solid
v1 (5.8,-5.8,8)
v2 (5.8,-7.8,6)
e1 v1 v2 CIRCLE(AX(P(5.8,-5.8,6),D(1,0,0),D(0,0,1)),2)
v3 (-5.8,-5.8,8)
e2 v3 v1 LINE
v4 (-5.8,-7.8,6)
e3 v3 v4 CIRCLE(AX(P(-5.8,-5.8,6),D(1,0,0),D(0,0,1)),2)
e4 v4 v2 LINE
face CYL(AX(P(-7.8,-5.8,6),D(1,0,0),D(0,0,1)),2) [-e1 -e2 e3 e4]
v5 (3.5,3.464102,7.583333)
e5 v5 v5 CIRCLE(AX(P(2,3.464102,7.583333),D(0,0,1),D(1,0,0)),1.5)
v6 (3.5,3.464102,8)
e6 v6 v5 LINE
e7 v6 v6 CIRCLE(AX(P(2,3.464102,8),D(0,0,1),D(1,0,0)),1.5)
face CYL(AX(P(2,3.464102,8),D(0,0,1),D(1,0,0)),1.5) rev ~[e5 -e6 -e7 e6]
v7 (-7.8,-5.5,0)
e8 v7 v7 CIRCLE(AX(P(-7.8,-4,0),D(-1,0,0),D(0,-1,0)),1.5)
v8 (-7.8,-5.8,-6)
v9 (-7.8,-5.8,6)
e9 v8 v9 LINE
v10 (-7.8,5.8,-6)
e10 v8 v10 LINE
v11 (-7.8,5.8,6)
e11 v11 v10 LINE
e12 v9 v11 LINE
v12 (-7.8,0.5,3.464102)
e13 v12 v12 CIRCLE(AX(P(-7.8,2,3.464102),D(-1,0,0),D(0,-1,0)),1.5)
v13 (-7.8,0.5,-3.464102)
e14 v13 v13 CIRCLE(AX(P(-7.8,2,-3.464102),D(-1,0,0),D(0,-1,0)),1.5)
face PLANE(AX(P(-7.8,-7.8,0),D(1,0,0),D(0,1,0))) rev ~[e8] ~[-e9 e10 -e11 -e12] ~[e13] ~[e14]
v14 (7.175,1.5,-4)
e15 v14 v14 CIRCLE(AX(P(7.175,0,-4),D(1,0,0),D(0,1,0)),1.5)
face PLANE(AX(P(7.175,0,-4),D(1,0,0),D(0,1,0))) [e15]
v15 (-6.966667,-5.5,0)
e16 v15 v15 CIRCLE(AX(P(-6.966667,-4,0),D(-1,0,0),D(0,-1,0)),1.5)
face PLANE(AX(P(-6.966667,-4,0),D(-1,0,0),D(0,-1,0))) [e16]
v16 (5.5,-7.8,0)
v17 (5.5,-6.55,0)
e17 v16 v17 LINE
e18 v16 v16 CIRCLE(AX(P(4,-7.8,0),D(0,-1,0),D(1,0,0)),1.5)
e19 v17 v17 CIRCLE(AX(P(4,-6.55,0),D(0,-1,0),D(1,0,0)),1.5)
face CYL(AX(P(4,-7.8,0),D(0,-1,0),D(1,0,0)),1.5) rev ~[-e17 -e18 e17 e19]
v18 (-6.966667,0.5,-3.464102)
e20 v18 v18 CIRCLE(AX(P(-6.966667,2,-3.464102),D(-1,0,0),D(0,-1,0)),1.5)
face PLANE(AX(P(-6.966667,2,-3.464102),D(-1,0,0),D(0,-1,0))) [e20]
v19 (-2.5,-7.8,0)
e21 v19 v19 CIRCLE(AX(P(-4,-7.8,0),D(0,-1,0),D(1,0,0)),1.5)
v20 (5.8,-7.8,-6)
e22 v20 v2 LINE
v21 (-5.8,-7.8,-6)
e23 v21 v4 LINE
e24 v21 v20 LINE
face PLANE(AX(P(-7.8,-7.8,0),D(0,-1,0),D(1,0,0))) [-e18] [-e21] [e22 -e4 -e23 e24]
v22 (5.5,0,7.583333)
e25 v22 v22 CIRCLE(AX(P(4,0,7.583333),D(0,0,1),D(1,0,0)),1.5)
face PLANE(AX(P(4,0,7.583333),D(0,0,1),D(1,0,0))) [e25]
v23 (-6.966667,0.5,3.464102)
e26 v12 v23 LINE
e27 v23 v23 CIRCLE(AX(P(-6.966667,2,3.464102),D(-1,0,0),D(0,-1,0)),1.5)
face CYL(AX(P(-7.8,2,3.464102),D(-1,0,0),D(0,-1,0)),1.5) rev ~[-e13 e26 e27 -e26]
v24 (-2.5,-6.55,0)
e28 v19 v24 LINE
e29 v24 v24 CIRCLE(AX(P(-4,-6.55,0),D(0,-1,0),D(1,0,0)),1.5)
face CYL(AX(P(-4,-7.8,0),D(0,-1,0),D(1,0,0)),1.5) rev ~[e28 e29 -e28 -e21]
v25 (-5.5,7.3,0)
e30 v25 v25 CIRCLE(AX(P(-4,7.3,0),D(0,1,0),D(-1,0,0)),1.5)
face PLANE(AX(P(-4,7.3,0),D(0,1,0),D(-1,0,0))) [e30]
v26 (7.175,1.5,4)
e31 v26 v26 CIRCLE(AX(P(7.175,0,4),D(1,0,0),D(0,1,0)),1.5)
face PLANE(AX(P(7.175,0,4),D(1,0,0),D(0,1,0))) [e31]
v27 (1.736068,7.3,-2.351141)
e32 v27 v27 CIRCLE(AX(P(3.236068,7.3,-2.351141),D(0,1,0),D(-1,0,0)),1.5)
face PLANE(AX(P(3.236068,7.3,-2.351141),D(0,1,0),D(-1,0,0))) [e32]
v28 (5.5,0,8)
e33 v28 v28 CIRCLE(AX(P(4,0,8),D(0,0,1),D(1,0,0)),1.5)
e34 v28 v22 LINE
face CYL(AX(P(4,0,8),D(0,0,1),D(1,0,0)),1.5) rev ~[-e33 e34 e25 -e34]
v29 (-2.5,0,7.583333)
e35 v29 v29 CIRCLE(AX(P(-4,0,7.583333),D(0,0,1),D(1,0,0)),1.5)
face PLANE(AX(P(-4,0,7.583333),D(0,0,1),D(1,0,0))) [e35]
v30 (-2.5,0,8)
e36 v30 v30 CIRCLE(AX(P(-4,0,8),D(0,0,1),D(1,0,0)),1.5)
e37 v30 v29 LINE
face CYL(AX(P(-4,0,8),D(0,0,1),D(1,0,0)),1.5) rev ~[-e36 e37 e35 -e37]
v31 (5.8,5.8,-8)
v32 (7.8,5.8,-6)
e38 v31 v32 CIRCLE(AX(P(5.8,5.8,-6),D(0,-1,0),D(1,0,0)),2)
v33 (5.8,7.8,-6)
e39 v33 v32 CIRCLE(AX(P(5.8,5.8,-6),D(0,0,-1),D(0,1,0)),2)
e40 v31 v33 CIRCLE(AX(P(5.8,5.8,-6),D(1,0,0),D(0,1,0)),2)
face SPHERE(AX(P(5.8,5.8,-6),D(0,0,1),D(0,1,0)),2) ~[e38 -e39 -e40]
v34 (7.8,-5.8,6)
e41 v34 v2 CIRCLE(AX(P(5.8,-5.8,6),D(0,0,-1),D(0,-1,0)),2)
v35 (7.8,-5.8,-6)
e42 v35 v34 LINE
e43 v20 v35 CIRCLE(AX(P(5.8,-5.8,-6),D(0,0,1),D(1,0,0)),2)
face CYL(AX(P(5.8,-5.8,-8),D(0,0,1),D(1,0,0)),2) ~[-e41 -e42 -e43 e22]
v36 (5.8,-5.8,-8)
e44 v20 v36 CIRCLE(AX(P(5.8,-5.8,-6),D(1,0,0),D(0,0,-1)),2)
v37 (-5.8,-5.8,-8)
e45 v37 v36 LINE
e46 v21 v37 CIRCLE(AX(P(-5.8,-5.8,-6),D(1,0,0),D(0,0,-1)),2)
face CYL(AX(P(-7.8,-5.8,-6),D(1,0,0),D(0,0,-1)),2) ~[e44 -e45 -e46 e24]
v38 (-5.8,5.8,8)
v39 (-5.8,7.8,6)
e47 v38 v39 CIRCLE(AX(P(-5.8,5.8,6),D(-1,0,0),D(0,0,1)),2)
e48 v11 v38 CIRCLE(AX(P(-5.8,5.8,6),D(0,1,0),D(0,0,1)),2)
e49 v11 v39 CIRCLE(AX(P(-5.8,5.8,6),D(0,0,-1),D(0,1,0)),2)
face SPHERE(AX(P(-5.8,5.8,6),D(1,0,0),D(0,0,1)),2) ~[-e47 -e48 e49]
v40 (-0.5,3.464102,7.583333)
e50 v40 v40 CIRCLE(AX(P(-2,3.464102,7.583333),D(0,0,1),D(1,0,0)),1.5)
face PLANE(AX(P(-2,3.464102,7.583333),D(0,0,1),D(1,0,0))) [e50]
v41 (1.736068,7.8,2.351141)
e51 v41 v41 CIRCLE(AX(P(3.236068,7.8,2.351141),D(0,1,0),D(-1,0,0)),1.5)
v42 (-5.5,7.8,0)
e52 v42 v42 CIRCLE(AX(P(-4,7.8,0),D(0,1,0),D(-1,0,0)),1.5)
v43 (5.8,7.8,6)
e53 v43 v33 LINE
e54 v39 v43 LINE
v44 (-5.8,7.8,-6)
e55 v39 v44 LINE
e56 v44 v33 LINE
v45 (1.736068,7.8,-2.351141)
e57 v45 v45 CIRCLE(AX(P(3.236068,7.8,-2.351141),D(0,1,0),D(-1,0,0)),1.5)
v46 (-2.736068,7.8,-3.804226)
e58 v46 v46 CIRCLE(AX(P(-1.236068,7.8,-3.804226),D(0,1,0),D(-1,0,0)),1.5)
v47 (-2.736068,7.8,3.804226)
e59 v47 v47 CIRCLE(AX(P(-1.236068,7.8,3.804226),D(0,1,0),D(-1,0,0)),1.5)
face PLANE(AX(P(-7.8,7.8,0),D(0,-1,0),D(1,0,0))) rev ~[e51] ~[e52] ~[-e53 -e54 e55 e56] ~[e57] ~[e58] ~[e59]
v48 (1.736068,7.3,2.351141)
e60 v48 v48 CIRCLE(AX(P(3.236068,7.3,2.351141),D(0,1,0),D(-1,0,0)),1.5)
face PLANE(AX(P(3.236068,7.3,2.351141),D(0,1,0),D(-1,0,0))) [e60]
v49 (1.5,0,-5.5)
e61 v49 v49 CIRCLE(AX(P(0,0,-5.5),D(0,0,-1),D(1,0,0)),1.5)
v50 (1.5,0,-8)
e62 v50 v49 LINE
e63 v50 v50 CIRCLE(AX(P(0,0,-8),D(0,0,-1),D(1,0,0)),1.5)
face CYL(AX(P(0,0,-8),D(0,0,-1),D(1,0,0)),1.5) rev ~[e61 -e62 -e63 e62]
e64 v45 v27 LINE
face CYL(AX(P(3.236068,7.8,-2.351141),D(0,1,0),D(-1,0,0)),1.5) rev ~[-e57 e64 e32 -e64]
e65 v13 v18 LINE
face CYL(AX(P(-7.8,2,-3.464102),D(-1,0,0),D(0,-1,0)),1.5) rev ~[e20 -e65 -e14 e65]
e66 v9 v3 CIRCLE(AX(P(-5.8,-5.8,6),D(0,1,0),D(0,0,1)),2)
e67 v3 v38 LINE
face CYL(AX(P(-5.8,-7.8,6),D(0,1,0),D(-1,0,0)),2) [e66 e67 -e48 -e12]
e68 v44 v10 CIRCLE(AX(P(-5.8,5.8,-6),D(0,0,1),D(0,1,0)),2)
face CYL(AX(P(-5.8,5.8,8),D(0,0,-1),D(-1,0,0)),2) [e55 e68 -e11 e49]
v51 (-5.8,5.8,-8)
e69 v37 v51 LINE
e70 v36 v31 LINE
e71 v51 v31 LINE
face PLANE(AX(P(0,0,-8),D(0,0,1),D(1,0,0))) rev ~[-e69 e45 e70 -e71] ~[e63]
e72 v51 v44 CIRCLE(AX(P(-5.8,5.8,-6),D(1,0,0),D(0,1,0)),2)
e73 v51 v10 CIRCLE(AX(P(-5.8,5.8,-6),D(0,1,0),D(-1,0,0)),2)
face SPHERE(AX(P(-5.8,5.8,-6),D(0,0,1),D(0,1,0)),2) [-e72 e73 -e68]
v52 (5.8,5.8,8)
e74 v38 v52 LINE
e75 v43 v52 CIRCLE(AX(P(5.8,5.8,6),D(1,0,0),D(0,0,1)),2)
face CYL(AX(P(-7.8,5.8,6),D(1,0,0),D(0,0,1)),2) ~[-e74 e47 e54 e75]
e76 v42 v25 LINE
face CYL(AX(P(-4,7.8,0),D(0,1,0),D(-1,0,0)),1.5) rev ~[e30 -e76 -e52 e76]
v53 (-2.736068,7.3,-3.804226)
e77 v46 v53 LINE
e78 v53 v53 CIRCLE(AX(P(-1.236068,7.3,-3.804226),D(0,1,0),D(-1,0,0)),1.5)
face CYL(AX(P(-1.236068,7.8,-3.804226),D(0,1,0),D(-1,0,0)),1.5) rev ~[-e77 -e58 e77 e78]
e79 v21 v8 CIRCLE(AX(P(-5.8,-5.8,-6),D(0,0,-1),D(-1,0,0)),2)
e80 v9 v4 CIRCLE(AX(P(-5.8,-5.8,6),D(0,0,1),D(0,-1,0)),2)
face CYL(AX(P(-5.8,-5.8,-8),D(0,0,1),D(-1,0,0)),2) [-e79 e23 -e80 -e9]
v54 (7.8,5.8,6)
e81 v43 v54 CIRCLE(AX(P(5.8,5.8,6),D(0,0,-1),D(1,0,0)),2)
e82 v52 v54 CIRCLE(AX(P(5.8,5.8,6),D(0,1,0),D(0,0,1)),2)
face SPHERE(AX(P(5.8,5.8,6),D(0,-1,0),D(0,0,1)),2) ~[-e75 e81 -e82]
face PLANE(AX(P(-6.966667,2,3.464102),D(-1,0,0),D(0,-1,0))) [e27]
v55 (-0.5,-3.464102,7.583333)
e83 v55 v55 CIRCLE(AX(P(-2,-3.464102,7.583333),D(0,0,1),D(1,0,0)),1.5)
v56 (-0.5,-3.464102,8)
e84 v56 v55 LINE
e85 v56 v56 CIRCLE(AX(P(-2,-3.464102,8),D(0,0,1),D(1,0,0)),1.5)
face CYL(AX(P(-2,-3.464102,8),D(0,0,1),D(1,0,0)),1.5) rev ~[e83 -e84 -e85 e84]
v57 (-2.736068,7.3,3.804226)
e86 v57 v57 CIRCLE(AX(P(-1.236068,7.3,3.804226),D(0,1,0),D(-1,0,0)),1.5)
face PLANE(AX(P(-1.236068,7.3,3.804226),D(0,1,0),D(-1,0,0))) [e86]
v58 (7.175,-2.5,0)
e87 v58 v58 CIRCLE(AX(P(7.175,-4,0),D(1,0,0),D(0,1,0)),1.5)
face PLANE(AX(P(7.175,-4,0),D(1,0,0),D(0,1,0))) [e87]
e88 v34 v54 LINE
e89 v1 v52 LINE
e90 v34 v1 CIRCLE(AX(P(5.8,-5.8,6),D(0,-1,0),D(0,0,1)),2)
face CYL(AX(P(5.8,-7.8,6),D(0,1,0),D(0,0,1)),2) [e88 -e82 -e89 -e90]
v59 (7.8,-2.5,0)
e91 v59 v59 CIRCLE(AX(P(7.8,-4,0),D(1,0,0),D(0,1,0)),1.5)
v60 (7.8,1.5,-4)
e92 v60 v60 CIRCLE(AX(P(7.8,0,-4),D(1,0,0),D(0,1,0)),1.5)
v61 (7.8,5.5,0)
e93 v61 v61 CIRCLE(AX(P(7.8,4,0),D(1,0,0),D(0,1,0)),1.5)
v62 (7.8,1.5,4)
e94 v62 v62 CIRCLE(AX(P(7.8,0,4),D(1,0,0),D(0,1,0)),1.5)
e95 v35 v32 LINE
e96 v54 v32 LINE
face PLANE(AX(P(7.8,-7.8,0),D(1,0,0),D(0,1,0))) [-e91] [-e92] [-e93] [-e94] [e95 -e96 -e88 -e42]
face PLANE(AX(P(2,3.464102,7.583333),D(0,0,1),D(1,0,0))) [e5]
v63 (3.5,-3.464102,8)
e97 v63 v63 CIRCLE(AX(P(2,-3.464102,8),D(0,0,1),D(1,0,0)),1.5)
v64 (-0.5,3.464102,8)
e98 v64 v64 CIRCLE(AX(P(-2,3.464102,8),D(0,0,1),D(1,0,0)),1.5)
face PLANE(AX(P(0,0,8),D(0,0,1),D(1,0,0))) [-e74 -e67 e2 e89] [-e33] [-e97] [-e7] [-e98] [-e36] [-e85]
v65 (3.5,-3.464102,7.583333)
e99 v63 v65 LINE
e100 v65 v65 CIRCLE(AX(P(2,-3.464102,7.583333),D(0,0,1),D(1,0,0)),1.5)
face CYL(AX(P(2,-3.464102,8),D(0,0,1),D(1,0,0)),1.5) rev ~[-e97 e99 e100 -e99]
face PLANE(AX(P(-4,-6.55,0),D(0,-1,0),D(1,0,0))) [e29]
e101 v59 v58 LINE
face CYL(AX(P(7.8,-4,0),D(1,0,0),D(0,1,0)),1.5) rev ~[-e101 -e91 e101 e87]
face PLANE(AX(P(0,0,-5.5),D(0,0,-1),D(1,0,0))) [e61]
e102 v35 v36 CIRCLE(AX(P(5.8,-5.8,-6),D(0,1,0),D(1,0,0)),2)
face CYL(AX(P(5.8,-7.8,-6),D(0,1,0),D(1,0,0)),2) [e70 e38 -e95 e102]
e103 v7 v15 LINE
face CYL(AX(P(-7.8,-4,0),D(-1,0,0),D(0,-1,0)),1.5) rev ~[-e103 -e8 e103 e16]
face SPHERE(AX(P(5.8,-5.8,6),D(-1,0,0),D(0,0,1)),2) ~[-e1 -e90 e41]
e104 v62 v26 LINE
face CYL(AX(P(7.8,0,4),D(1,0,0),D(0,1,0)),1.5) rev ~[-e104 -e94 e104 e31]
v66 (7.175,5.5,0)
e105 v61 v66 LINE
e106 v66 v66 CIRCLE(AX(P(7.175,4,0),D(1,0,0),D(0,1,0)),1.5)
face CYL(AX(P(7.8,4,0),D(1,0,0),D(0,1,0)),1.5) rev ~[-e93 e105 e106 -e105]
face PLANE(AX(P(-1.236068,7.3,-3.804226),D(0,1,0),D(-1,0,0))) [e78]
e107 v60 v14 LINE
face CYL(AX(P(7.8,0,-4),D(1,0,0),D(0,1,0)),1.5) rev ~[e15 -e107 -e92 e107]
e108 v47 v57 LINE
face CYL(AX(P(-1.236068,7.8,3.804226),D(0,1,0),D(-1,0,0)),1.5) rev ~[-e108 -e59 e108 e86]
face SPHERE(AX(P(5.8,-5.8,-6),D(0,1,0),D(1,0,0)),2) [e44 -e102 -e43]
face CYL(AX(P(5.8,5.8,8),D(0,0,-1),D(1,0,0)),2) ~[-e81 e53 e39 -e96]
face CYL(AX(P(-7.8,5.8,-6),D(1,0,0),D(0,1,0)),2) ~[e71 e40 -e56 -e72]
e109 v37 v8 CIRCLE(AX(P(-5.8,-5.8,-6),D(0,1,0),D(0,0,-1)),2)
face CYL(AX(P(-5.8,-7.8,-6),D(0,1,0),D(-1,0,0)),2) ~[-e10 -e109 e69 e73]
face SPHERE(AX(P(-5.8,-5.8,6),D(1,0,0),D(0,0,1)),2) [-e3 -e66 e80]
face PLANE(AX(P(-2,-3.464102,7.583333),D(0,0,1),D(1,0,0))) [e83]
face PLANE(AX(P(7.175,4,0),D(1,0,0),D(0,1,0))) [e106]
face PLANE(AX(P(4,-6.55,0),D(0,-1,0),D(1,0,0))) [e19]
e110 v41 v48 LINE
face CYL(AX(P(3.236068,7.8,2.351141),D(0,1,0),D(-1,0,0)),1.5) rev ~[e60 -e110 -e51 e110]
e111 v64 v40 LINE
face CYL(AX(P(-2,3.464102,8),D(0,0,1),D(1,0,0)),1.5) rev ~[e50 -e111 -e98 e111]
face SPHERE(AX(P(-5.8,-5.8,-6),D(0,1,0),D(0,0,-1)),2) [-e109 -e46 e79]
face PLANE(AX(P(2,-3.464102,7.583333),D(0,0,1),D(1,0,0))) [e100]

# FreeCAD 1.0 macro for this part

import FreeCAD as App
import Part
import Sketcher
from FreeCAD import Vector
Q = App.Units.Quantity

doc = App.newDocument("Part")
params = doc.addObject("Spreadsheet::Sheet", "Params")
for row, (alias, value) in enumerate([
    ("sketch1_width", "15.6 mm"),
    ("pad1_length", "8 mm"),
    ("pad1_length2", "8 mm"),
    ("fillet_radius", "2 mm"),
    ("sketch2_diameter", "3 mm"),
    ("pocket1_length", "2.5 mm"),
    ("sketch3_diameter", "3 mm"),
    ("pocket2_length", "0.416667 mm"),
    ("sketch4_diameter", "3 mm"),
    ("pocket3_length", "1.25 mm"),
    ("sketch5_diameter", "3 mm"),
    ("pocket4_length", "0.833333 mm"),
    ("sketch6_diameter", "3 mm"),
    ("pocket5_length", "0.625 mm"),
    ("sketch7_diameter", "3 mm"),
    ("pocket6_length", "0.5 mm"),
], start=1):
    params.set(f"A{row}", alias)
    params.set(f"B{row}", "=" + value)
    params.setAlias(f"B{row}", alias)

body = doc.addObject("PartDesign::Body", "Body")

# Sketch on XY plane
sketch1 = body.newObject("Sketcher::SketchObject", "Sketch")
sketch1.AttachmentSupport = (doc.getObject("XY_Plane"), [""])
sketch1.MapMode = "FlatFace"
sketch1.addGeometry([
    Part.LineSegment(Vector(-8, 8, 0), Vector(-8, -8, 0)),
    Part.LineSegment(Vector(-8, -8, 0), Vector(8, -8, 0)),
    Part.LineSegment(Vector(8, -8, 0), Vector(8, 8, 0)),
    Part.LineSegment(Vector(8, 8, 0), Vector(-8, 8, 0)),
], False)
sketch1.addConstraint([
    Sketcher.Constraint("Coincident", 0, 2, 1, 1),
    Sketcher.Constraint("Coincident", 1, 2, 2, 1),
    Sketcher.Constraint("Coincident", 2, 2, 3, 1),
    Sketcher.Constraint("Coincident", 3, 2, 0, 1),
    Sketcher.Constraint("Vertical", 0),
    Sketcher.Constraint("Horizontal", 1),
    Sketcher.Constraint("Vertical", 2),
    Sketcher.Constraint("Horizontal", 3),
    Sketcher.Constraint("Symmetric", 0, 2, 2, 2, -1, 1),
    Sketcher.Constraint("Equal", 3, 0),
    Sketcher.Constraint("DistanceX", 1, 1, 1, 2, Q("15.6 mm")),
])
sketch1.setExpression("Constraints[10]", "Params.sketch1_width")
pad1 = body.newObject("PartDesign::Pad", "Pad")
pad1.Profile = sketch1
pad1.Type = "TwoLengths"
pad1.setExpression("Length", "Params.pad1_length")
pad1.setExpression("Length2", "Params.pad1_length2")
doc.recompute()

fillet = body.newObject("PartDesign::Fillet", "Fillet")
fillet.Base = (pad1, ["Edge1"])
fillet.UseAllEdges = True
fillet.setExpression("Radius", "Params.fillet_radius")

# Sketch on XY plane
sketch2 = body.newObject("Sketcher::SketchObject", "Sketch001")
sketch2.AttachmentSupport = (doc.getObject("XY_Plane"), [""])
sketch2.MapMode = "FlatFace"
sketch2.AttachmentOffset = App.Placement(Vector(0, 0, -8), App.Rotation())
sketch2.addGeometry(Part.Circle(Vector(0, 0, 0), Vector(0, 0, 1), 1.5), False)
sketch2.addConstraint([
    Sketcher.Constraint("Coincident", 0, 3, -1, 1),
    Sketcher.Constraint("Diameter", 0, Q("3 mm")),
])
sketch2.setExpression("Constraints[1]", "Params.sketch2_diameter")
pocket1 = body.newObject("PartDesign::Pocket", "Pocket")
pocket1.Profile = sketch2
pocket1.setExpression("Length", "Params.pocket1_length")
pocket1.Reversed = True

# Sketch on XY plane
sketch3 = body.newObject("Sketcher::SketchObject", "Sketch002")
sketch3.AttachmentSupport = (doc.getObject("XY_Plane"), [""])
sketch3.MapMode = "FlatFace"
sketch3.AttachmentOffset = App.Placement(Vector(0, 0, 8), App.Rotation())
sketch3.addGeometry([
    Part.Circle(Vector(-2, 3.5, 0), Vector(0, 0, 1), 1.5),  # 0
    Part.Circle(Vector(2, 3.5, 0), Vector(0, 0, 1), 1.5),  # 1
    Part.Circle(Vector(4, 0, 0), Vector(0, 0, 1), 1.5),  # 2
    Part.Circle(Vector(2, -3.5, 0), Vector(0, 0, 1), 1.5),  # 3
    Part.Circle(Vector(-2, -3.5, 0), Vector(0, 0, 1), 1.5),  # 4
    Part.Circle(Vector(-4, 0, 0), Vector(0, 0, 1), 1.5),  # 5
], False)
sketch3.addConstraint([
    Sketcher.Constraint("Equal", 0, 1),
    Sketcher.Constraint("Equal", 1, 2),
    Sketcher.Constraint("Equal", 2, 3),
    Sketcher.Constraint("Equal", 3, 4),
    Sketcher.Constraint("Equal", 4, 5),
    Sketcher.Constraint("Symmetric", 0, 3, 3, 3, -1, 1),
    Sketcher.Constraint("Symmetric", 1, 3, 4, 3, -1, 1),
    Sketcher.Constraint("Symmetric", 2, 3, 5, 3, -1, 1),
    Sketcher.Constraint("Symmetric", 0, 3, 1, 3, -2),
    Sketcher.Constraint("PointOnObject", 2, 3, -1),
    Sketcher.Constraint("Diameter", 0, Q("3 mm")),
    Sketcher.Constraint("DistanceX", 0, 3, -1, 1, Q("2 mm")),
    Sketcher.Constraint("DistanceX", -1, 1, 2, 3, Q("4 mm")),
    Sketcher.Constraint("DistanceY", -1, 1, 0, 3, Q("3.464102 mm")),
])
sketch3.setExpression("Constraints[10]", "Params.sketch3_diameter")
pocket2 = body.newObject("PartDesign::Pocket", "Pocket001")
pocket2.Profile = sketch3
pocket2.setExpression("Length", "Params.pocket2_length")

# Sketch on XZ plane
sketch4 = body.newObject("Sketcher::SketchObject", "Sketch003")
sketch4.AttachmentSupport = (doc.getObject("XZ_Plane"), [""])
sketch4.MapMode = "FlatFace"
sketch4.AttachmentOffset = App.Placement(Vector(0, 0, 7.8), App.Rotation())
sketch4.addGeometry([
    Part.Circle(Vector(-4, 0, 0), Vector(0, 0, 1), 1.5),
    Part.Circle(Vector(4, 0, 0), Vector(0, 0, 1), 1.5),
], False)
sketch4.addConstraint([
    Sketcher.Constraint("Equal", 0, 1),
    Sketcher.Constraint("Symmetric", 0, 3, 1, 3, -1, 1),
    Sketcher.Constraint("PointOnObject", 0, 3, -1),
    Sketcher.Constraint("Diameter", 0, Q("3 mm")),
    Sketcher.Constraint("DistanceX", 0, 3, -1, 1, Q("4 mm")),
])
sketch4.setExpression("Constraints[3]", "Params.sketch4_diameter")
pocket3 = body.newObject("PartDesign::Pocket", "Pocket002")
pocket3.Profile = sketch4
pocket3.setExpression("Length", "Params.pocket3_length")

# Sketch on YZ plane
sketch5 = body.newObject("Sketcher::SketchObject", "Sketch004")
sketch5.AttachmentSupport = (doc.getObject("YZ_Plane"), [""])
sketch5.MapMode = "FlatFace"
sketch5.AttachmentOffset = App.Placement(Vector(0, 0, -7.8), App.Rotation())
sketch5.addGeometry([
    Part.Circle(Vector(2, 3.5, 0), Vector(0, 0, 1), 1.5),
    Part.Circle(Vector(2, -3.5, 0), Vector(0, 0, 1), 1.5),
    Part.Circle(Vector(-4, 0, 0), Vector(0, 0, 1), 1.5),
], False)
sketch5.addConstraint([
    Sketcher.Constraint("Equal", 0, 1),
    Sketcher.Constraint("Equal", 1, 2),
    Sketcher.Constraint("Symmetric", 0, 3, 1, 3, -1),
    Sketcher.Constraint("PointOnObject", 2, 3, -1),
    Sketcher.Constraint("Diameter", 0, Q("3 mm")),
    Sketcher.Constraint("DistanceX", -1, 1, 0, 3, Q("2 mm")),
    Sketcher.Constraint("DistanceX", 2, 3, -1, 1, Q("4 mm")),
    Sketcher.Constraint("DistanceY", -1, 1, 0, 3, Q("3.464102 mm")),
])
sketch5.setExpression("Constraints[4]", "Params.sketch5_diameter")
pocket4 = body.newObject("PartDesign::Pocket", "Pocket003")
pocket4.Profile = sketch5
pocket4.setExpression("Length", "Params.pocket4_length")
pocket4.Reversed = True

# Sketch on YZ plane
sketch6 = body.newObject("Sketcher::SketchObject", "Sketch005")
sketch6.AttachmentSupport = (doc.getObject("YZ_Plane"), [""])
sketch6.MapMode = "FlatFace"
sketch6.AttachmentOffset = App.Placement(Vector(0, 0, 7.8), App.Rotation())
sketch6.addGeometry([
    Part.Circle(Vector(-4, 0, 0), Vector(0, 0, 1), 1.5),
    Part.Circle(Vector(0, 4, 0), Vector(0, 0, 1), 1.5),
    Part.Circle(Vector(4, 0, 0), Vector(0, 0, 1), 1.5),
    Part.Circle(Vector(0, -4, 0), Vector(0, 0, 1), 1.5),
], False)
sketch6.addConstraint([
    Sketcher.Constraint("Equal", 0, 1),
    Sketcher.Constraint("Equal", 1, 2),
    Sketcher.Constraint("Equal", 2, 3),
    Sketcher.Constraint("Symmetric", 0, 3, 2, 3, -1, 1),
    Sketcher.Constraint("Symmetric", 1, 3, 3, 3, -1, 1),
    Sketcher.Constraint("PointOnObject", 0, 3, -1),
    Sketcher.Constraint("PointOnObject", 1, 3, -2),
    Sketcher.Constraint("Diameter", 0, Q("3 mm")),
    Sketcher.Constraint("DistanceX", 0, 3, -1, 1, Q("4 mm")),
    Sketcher.Constraint("DistanceY", -1, 1, 1, 3, Q("4 mm")),
])
sketch6.setExpression("Constraints[7]", "Params.sketch6_diameter")
pocket5 = body.newObject("PartDesign::Pocket", "Pocket004")
pocket5.Profile = sketch6
pocket5.setExpression("Length", "Params.pocket5_length")

# Sketch on XZ plane
sketch7 = body.newObject("Sketcher::SketchObject", "Sketch006")
sketch7.AttachmentSupport = (doc.getObject("XZ_Plane"), [""])
sketch7.MapMode = "FlatFace"
sketch7.AttachmentOffset = App.Placement(Vector(0, 0, -7.8), App.Rotation())
sketch7.addGeometry([
    Part.Circle(Vector(3.2, 2.4, 0), Vector(0, 0, 1), 1.5),  # 0
    Part.Circle(Vector(-1.2, 3.8, 0), Vector(0, 0, 1), 1.5),  # 1
    Part.Circle(Vector(-4, 0, 0), Vector(0, 0, 1), 1.5),  # 2
    Part.Circle(Vector(-1.2, -3.8, 0), Vector(0, 0, 1), 1.5),  # 3
    Part.Circle(Vector(3.2, -2.4, 0), Vector(0, 0, 1), 1.5),  # 4
], False)
sketch7.addConstraint([
    Sketcher.Constraint("Equal", 0, 1),
    Sketcher.Constraint("Equal", 1, 2),
    Sketcher.Constraint("Equal", 2, 3),
    Sketcher.Constraint("Equal", 3, 4),
    Sketcher.Constraint("Symmetric", 1, 3, 3, 3, -1),
    Sketcher.Constraint("Symmetric", 0, 3, 4, 3, -1),
    Sketcher.Constraint("PointOnObject", 2, 3, -1),
    Sketcher.Constraint("Diameter", 0, Q("3 mm")),
    Sketcher.Constraint("DistanceX", 2, 3, -1, 1, Q("4 mm")),
    Sketcher.Constraint("DistanceY", -1, 1, 0, 3, Q("2.351141 mm")),
    Sketcher.Constraint("DistanceX", -1, 1, 0, 3, Q("3.236068 mm")),
    Sketcher.Constraint("DistanceX", 1, 3, -1, 1, Q("1.236068 mm")),
    Sketcher.Constraint("DistanceY", -1, 1, 1, 3, Q("3.804226 mm")),
])
sketch7.setExpression("Constraints[7]", "Params.sketch7_diameter")
pocket6 = body.newObject("PartDesign::Pocket", "Pocket005")
pocket6.Profile = sketch7
pocket6.setExpression("Length", "Params.pocket6_length")
pocket6.Reversed = True

doc.recompute()
